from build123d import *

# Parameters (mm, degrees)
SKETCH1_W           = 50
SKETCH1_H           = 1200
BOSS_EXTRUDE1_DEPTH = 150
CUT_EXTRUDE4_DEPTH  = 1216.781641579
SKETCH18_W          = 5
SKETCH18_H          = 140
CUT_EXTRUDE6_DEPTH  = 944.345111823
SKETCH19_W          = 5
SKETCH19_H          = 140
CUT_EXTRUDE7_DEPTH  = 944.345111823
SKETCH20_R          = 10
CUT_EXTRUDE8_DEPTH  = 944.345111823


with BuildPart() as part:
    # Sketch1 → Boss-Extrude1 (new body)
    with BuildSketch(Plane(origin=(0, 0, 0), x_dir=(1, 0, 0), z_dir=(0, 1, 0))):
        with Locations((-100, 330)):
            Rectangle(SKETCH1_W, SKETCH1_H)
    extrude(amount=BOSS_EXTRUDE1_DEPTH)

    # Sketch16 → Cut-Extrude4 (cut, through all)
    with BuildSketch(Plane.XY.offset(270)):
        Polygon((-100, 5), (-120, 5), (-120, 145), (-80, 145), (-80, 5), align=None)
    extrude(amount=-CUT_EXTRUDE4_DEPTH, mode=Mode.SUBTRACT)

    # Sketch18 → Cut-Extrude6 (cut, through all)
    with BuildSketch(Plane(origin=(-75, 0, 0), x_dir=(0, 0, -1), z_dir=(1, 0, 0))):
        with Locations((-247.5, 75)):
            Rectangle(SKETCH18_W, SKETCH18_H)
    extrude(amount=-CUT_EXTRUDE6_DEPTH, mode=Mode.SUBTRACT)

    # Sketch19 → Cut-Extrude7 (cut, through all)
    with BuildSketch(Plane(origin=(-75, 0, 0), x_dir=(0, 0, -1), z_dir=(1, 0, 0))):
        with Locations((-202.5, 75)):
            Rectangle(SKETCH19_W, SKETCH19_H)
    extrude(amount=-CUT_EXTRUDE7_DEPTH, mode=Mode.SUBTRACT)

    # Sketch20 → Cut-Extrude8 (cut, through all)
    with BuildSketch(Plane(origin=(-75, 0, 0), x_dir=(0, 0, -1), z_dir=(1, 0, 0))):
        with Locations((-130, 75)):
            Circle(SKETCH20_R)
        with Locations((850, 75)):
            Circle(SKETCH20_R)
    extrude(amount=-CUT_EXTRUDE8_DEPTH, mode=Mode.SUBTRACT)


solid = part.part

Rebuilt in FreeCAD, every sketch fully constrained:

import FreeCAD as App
import Part
import Sketcher

V = App.Vector
Q = App.Units.Quantity

doc = App.newDocument("Part")
body = doc.addObject("PartDesign::Body", "Body")

sketch1 = doc.addObject("Sketcher::SketchObject", "Sketch")
body.addObject(sketch1)
sketch1.AttachmentSupport = (doc.XZ_Plane, [""])
sketch1.MapMode = "FlatFace"
sketch1.addGeometry(Part.LineSegment(V(-125, -930, 0), V(-125, 270, 0)), False)
sketch1.addGeometry(Part.LineSegment(V(-125, 270, 0), V(-75, 270, 0)), False)
sketch1.addGeometry(Part.LineSegment(V(-75, 270, 0), V(-75, -930, 0)), False)
sketch1.addGeometry(Part.LineSegment(V(-75, -930, 0), V(-125, -930, 0)), False)
sketch1.addConstraint(Sketcher.Constraint("Coincident", 0, 2, 1, 1))
sketch1.addConstraint(Sketcher.Constraint("Coincident", 1, 2, 2, 1))
sketch1.addConstraint(Sketcher.Constraint("Coincident", 2, 2, 3, 1))
sketch1.addConstraint(Sketcher.Constraint("Coincident", 3, 2, 0, 1))
sketch1.addConstraint(Sketcher.Constraint("Vertical", 0))
sketch1.addConstraint(Sketcher.Constraint("Horizontal", 1))
sketch1.addConstraint(Sketcher.Constraint("Vertical", 2))
sketch1.addConstraint(Sketcher.Constraint("Horizontal", 3))
sketch1.addConstraint(Sketcher.Constraint("DistanceX", 1, 1, 1, 2, Q("50 mm")))
sketch1.addConstraint(Sketcher.Constraint("DistanceY", 0, 1, 0, 2, Q("1200 mm")))
sketch1.addConstraint(Sketcher.Constraint("DistanceX", 0, 2, -1, 1, Q("125 mm")))
sketch1.addConstraint(Sketcher.Constraint("DistanceY", -1, 1, 0, 2, Q("270 mm")))
pad1 = doc.addObject("PartDesign::Pad", "Pad")
body.addObject(pad1)
pad1.Profile = sketch1
pad1.Length = 150
pad1.Reversed = True

sketch2 = doc.addObject("Sketcher::SketchObject", "Sketch001")
body.addObject(sketch2)
sketch2.AttachmentSupport = (doc.XY_Plane, [""])
sketch2.MapMode = "FlatFace"
sketch2.AttachmentOffset = App.Placement(V(0, 0, 270), App.Rotation())
sketch2.addGeometry(Part.LineSegment(V(-120, 5, 0), V(-80, 5, 0)), False)
sketch2.addGeometry(Part.LineSegment(V(-80, 5, 0), V(-80, 145, 0)), False)
sketch2.addGeometry(Part.LineSegment(V(-80, 145, 0), V(-120, 145, 0)), False)
sketch2.addGeometry(Part.LineSegment(V(-120, 145, 0), V(-120, 5, 0)), False)
sketch2.addConstraint(Sketcher.Constraint("Coincident", 0, 2, 1, 1))
sketch2.addConstraint(Sketcher.Constraint("Coincident", 1, 2, 2, 1))
sketch2.addConstraint(Sketcher.Constraint("Coincident", 2, 2, 3, 1))
sketch2.addConstraint(Sketcher.Constraint("Coincident", 3, 2, 0, 1))
sketch2.addConstraint(Sketcher.Constraint("Horizontal", 0))
sketch2.addConstraint(Sketcher.Constraint("Vertical", 1))
sketch2.addConstraint(Sketcher.Constraint("Horizontal", 2))
sketch2.addConstraint(Sketcher.Constraint("Vertical", 3))
sketch2.addConstraint(Sketcher.Constraint("DistanceX", 0, 1, 0, 2, Q("40 mm")))
sketch2.addConstraint(Sketcher.Constraint("DistanceY", 1, 1, 1, 2, Q("140 mm")))
sketch2.addConstraint(Sketcher.Constraint("DistanceX", 0, 2, -1, 1, Q("80 mm")))
sketch2.addConstraint(Sketcher.Constraint("DistanceY", -1, 1, 0, 2, Q("5 mm")))
pocket1 = doc.addObject("PartDesign::Pocket", "Pocket")
body.addObject(pocket1)
pocket1.Profile = sketch2
pocket1.Type = "ThroughAll"

sketch3 = doc.addObject("Sketcher::SketchObject", "Sketch002")
body.addObject(sketch3)
sketch3.AttachmentSupport = (doc.YZ_Plane, [""])
sketch3.MapMode = "FlatFace"
sketch3.AttachmentOffset = App.Placement(V(0, 0, -75), App.Rotation())
sketch3.addGeometry(Part.LineSegment(V(145, 250, 0), V(5, 250, 0)), False)
sketch3.addGeometry(Part.LineSegment(V(5, 250, 0), V(5, 245, 0)), False)
sketch3.addGeometry(Part.LineSegment(V(5, 245, 0), V(145, 245, 0)), False)
sketch3.addGeometry(Part.LineSegment(V(145, 245, 0), V(145, 250, 0)), False)
sketch3.addConstraint(Sketcher.Constraint("Coincident", 0, 2, 1, 1))
sketch3.addConstraint(Sketcher.Constraint("Coincident", 1, 2, 2, 1))
sketch3.addConstraint(Sketcher.Constraint("Coincident", 2, 2, 3, 1))
sketch3.addConstraint(Sketcher.Constraint("Coincident", 3, 2, 0, 1))
sketch3.addConstraint(Sketcher.Constraint("Horizontal", 0))
sketch3.addConstraint(Sketcher.Constraint("Vertical", 1))
sketch3.addConstraint(Sketcher.Constraint("Horizontal", 2))
sketch3.addConstraint(Sketcher.Constraint("Vertical", 3))
sketch3.addConstraint(Sketcher.Constraint("DistanceX", 0, 2, 0, 1, Q("140 mm")))
sketch3.addConstraint(Sketcher.Constraint("DistanceY", 1, 2, 1, 1, Q("5 mm")))
sketch3.addConstraint(Sketcher.Constraint("DistanceX", -1, 1, 0, 2, Q("5 mm")))
sketch3.addConstraint(Sketcher.Constraint("DistanceY", -1, 1, 0, 2, Q("250 mm")))
pocket2 = doc.addObject("PartDesign::Pocket", "Pocket001")
body.addObject(pocket2)
pocket2.Profile = sketch3
pocket2.Type = "ThroughAll"

sketch4 = doc.addObject("Sketcher::SketchObject", "Sketch003")
body.addObject(sketch4)
sketch4.AttachmentSupport = (doc.YZ_Plane, [""])
sketch4.MapMode = "FlatFace"
sketch4.AttachmentOffset = App.Placement(V(0, 0, -75), App.Rotation())
sketch4.addGeometry(Part.LineSegment(V(145, 205, 0), V(5, 205, 0)), False)
sketch4.addGeometry(Part.LineSegment(V(5, 205, 0), V(5, 200, 0)), False)
sketch4.addGeometry(Part.LineSegment(V(5, 200, 0), V(145, 200, 0)), False)
sketch4.addGeometry(Part.LineSegment(V(145, 200, 0), V(145, 205, 0)), False)
sketch4.addConstraint(Sketcher.Constraint("Coincident", 0, 2, 1, 1))
sketch4.addConstraint(Sketcher.Constraint("Coincident", 1, 2, 2, 1))
sketch4.addConstraint(Sketcher.Constraint("Coincident", 2, 2, 3, 1))
sketch4.addConstraint(Sketcher.Constraint("Coincident", 3, 2, 0, 1))
sketch4.addConstraint(Sketcher.Constraint("Horizontal", 0))
sketch4.addConstraint(Sketcher.Constraint("Vertical", 1))
sketch4.addConstraint(Sketcher.Constraint("Horizontal", 2))
sketch4.addConstraint(Sketcher.Constraint("Vertical", 3))
sketch4.addConstraint(Sketcher.Constraint("DistanceX", 0, 2, 0, 1, Q("140 mm")))
sketch4.addConstraint(Sketcher.Constraint("DistanceY", 1, 2, 1, 1, Q("5 mm")))
sketch4.addConstraint(Sketcher.Constraint("DistanceX", -1, 1, 0, 2, Q("5 mm")))
sketch4.addConstraint(Sketcher.Constraint("DistanceY", -1, 1, 0, 2, Q("205 mm")))
pocket3 = doc.addObject("PartDesign::Pocket", "Pocket002")
body.addObject(pocket3)
pocket3.Profile = sketch4
pocket3.Type = "ThroughAll"

sketch5 = doc.addObject("Sketcher::SketchObject", "Sketch004")
body.addObject(sketch5)
sketch5.AttachmentSupport = (doc.YZ_Plane, [""])
sketch5.MapMode = "FlatFace"
sketch5.AttachmentOffset = App.Placement(V(0, 0, -75), App.Rotation())
sketch5.addGeometry(Part.Circle(V(75, 130, 0), V(0, 0, 1), 10), False)
sketch5.addGeometry(Part.Circle(V(75, -850, 0), V(0, 0, 1), 10), False)
sketch5.addConstraint(Sketcher.Constraint("Equal", 0, 1))
sketch5.addConstraint(Sketcher.Constraint("Vertical", 0, 3, 1, 3))
sketch5.addConstraint(Sketcher.Constraint("Diameter", 0, Q("20 mm")))
sketch5.addConstraint(Sketcher.Constraint("DistanceX", -1, 1, 0, 3, Q("75 mm")))
sketch5.addConstraint(Sketcher.Constraint("DistanceY", -1, 1, 0, 3, Q("130 mm")))
sketch5.addConstraint(Sketcher.Constraint("DistanceY", 1, 3, -1, 1, Q("850 mm")))
pocket4 = doc.addObject("PartDesign::Pocket", "Pocket003")
body.addObject(pocket4)
pocket4.Profile = sketch5
pocket4.Type = "ThroughAll"

doc.recompute()
